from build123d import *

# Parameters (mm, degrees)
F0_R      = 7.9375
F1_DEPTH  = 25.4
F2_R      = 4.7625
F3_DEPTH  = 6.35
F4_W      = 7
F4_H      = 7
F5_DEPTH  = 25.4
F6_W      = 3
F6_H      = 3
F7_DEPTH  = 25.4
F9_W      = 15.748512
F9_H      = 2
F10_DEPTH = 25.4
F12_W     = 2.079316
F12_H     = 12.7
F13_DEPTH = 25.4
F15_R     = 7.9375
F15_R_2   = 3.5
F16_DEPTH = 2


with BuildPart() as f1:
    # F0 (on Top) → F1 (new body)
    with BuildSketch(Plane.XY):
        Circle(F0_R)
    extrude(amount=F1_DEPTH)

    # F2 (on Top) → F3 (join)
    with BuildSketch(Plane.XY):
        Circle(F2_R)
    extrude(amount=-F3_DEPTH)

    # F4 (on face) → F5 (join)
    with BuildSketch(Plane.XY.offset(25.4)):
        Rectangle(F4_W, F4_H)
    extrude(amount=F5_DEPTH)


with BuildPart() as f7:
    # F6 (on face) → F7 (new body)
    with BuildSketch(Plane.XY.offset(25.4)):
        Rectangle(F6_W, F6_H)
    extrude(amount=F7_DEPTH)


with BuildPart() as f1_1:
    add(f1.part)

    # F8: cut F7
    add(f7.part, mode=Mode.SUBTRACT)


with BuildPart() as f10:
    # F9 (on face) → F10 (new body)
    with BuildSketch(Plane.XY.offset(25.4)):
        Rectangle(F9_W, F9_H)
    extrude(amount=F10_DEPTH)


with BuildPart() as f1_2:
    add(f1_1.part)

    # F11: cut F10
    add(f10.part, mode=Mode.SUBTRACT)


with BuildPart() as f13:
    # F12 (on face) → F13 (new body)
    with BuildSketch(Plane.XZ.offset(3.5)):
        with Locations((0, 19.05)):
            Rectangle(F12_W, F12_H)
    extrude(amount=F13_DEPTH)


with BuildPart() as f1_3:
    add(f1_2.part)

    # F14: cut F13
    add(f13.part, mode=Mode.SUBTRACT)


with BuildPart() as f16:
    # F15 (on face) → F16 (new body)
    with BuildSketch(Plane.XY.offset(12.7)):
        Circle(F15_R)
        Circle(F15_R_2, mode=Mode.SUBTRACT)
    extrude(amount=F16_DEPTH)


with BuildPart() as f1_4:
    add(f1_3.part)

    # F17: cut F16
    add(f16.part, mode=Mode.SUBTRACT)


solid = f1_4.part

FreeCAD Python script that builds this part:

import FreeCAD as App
import Part
import Sketcher

V = App.Vector
Q = App.Units.Quantity

doc = App.newDocument("Part")
body = doc.addObject("PartDesign::Body", "Body")

sketch1 = doc.addObject("Sketcher::SketchObject", "Sketch")
body.addObject(sketch1)
sketch1.AttachmentSupport = (doc.XY_Plane, [""])
sketch1.MapMode = "FlatFace"
sketch1.addGeometry(Part.Circle(V(0, 0, 0), V(0, 0, 1), 8), False)
sketch1.addConstraint(Sketcher.Constraint("Coincident", 0, 3, -1, 1))
sketch1.addConstraint(Sketcher.Constraint("Diameter", 0, Q("0.625 in")))
pad1 = doc.addObject("PartDesign::Pad", "Pad")
body.addObject(pad1)
pad1.Profile = sketch1
pad1.Length = Q("1 in")

sketch2 = doc.addObject("Sketcher::SketchObject", "Sketch001")
body.addObject(sketch2)
sketch2.AttachmentSupport = (doc.XY_Plane, [""])
sketch2.MapMode = "FlatFace"
sketch2.addGeometry(Part.Circle(V(0, 0, 0), V(0, 0, 1), 4.8), False)
sketch2.addConstraint(Sketcher.Constraint("Coincident", 0, 3, -1, 1))
sketch2.addConstraint(Sketcher.Constraint("Diameter", 0, Q("0.375 in")))
pad2 = doc.addObject("PartDesign::Pad", "Pad001")
body.addObject(pad2)
pad2.Profile = sketch2
pad2.Length = Q("0.25 in")
pad2.Reversed = True

sketch3 = doc.addObject("Sketcher::SketchObject", "Sketch002")
body.addObject(sketch3)
sketch3.AttachmentSupport = (doc.XY_Plane, [""])
sketch3.MapMode = "FlatFace"
sketch3.AttachmentOffset = App.Placement(V(0, 0, 1 * 25.4), App.Rotation())
sketch3.addGeometry(Part.LineSegment(V(-4, 4, 0), V(-4, -4, 0)), False)
sketch3.addGeometry(Part.LineSegment(V(-4, -4, 0), V(4, -4, 0)), False)
sketch3.addGeometry(Part.LineSegment(V(4, -4, 0), V(4, 4, 0)), False)
sketch3.addGeometry(Part.LineSegment(V(4, 4, 0), V(-4, 4, 0)), False)
sketch3.addConstraint(Sketcher.Constraint("Coincident", 0, 2, 1, 1))
sketch3.addConstraint(Sketcher.Constraint("Coincident", 1, 2, 2, 1))
sketch3.addConstraint(Sketcher.Constraint("Coincident", 2, 2, 3, 1))
sketch3.addConstraint(Sketcher.Constraint("Coincident", 3, 2, 0, 1))
sketch3.addConstraint(Sketcher.Constraint("Vertical", 0))
sketch3.addConstraint(Sketcher.Constraint("Horizontal", 1))
sketch3.addConstraint(Sketcher.Constraint("Vertical", 2))
sketch3.addConstraint(Sketcher.Constraint("Horizontal", 3))
sketch3.addConstraint(Sketcher.Constraint("Symmetric", 0, 2, 2, 2, -1, 1))
sketch3.addConstraint(Sketcher.Constraint("Equal", 3, 0))
sketch3.addConstraint(Sketcher.Constraint("DistanceX", 1, 1, 1, 2, Q("7 mm")))
pad3 = doc.addObject("PartDesign::Pad", "Pad002")
body.addObject(pad3)
pad3.Profile = sketch3
pad3.Length = Q("1 in")
body2 = doc.addObject("PartDesign::Body", "Body001")

sketch4 = doc.addObject("Sketcher::SketchObject", "Sketch003")
body2.addObject(sketch4)
sketch4.AttachmentSupport = (doc.getObject("XY_Plane001"), [""])
sketch4.MapMode = "FlatFace"
sketch4.AttachmentOffset = App.Placement(V(0, 0, 1 * 25.4), App.Rotation())
sketch4.addGeometry(Part.LineSegment(V(-1.5, 1.5, 0), V(-1.5, -1.5, 0)), False)
sketch4.addGeometry(Part.LineSegment(V(-1.5, -1.5, 0), V(1.5, -1.5, 0)), False)
sketch4.addGeometry(Part.LineSegment(V(1.5, -1.5, 0), V(1.5, 1.5, 0)), False)
sketch4.addGeometry(Part.LineSegment(V(1.5, 1.5, 0), V(-1.5, 1.5, 0)), False)
sketch4.addConstraint(Sketcher.Constraint("Coincident", 0, 2, 1, 1))
sketch4.addConstraint(Sketcher.Constraint("Coincident", 1, 2, 2, 1))
sketch4.addConstraint(Sketcher.Constraint("Coincident", 2, 2, 3, 1))
sketch4.addConstraint(Sketcher.Constraint("Coincident", 3, 2, 0, 1))
sketch4.addConstraint(Sketcher.Constraint("Vertical", 0))
sketch4.addConstraint(Sketcher.Constraint("Horizontal", 1))
sketch4.addConstraint(Sketcher.Constraint("Vertical", 2))
sketch4.addConstraint(Sketcher.Constraint("Horizontal", 3))
sketch4.addConstraint(Sketcher.Constraint("Symmetric", 0, 2, 2, 2, -1, 1))
sketch4.addConstraint(Sketcher.Constraint("Equal", 3, 0))
sketch4.addConstraint(Sketcher.Constraint("DistanceX", 1, 1, 1, 2, Q("3 mm")))
pad4 = doc.addObject("PartDesign::Pad", "Pad003")
body2.addObject(pad4)
pad4.Profile = sketch4
pad4.Length = Q("1 in")
doc.recompute()

boolean = doc.addObject("PartDesign::Boolean", "Boolean")
body.addObject(boolean)
boolean.Type = "Cut"
boolean.addObjects([body2])
body3 = doc.addObject("PartDesign::Body", "Body002")

sketch5 = doc.addObject("Sketcher::SketchObject", "Sketch004")
body3.addObject(sketch5)
sketch5.AttachmentSupport = (doc.getObject("XY_Plane002"), [""])
sketch5.MapMode = "FlatFace"
sketch5.AttachmentOffset = App.Placement(V(0, 0, 1 * 25.4), App.Rotation())
sketch5.addGeometry(Part.LineSegment(V(-7.9, 1, 0), V(-7.9, -1, 0)), False)
sketch5.addGeometry(Part.LineSegment(V(-7.9, -1, 0), V(7.9, -1, 0)), False)
sketch5.addGeometry(Part.LineSegment(V(7.9, -1, 0), V(7.9, 1, 0)), False)
sketch5.addGeometry(Part.LineSegment(V(7.9, 1, 0), V(-7.9, 1, 0)), False)
sketch5.addConstraint(Sketcher.Constraint("Coincident", 0, 2, 1, 1))
sketch5.addConstraint(Sketcher.Constraint("Coincident", 1, 2, 2, 1))
sketch5.addConstraint(Sketcher.Constraint("Coincident", 2, 2, 3, 1))
sketch5.addConstraint(Sketcher.Constraint("Coincident", 3, 2, 0, 1))
sketch5.addConstraint(Sketcher.Constraint("Vertical", 0))
sketch5.addConstraint(Sketcher.Constraint("Horizontal", 1))
sketch5.addConstraint(Sketcher.Constraint("Vertical", 2))
sketch5.addConstraint(Sketcher.Constraint("Horizontal", 3))
sketch5.addConstraint(Sketcher.Constraint("Symmetric", 0, 2, 2, 2, -1, 1))
sketch5.addConstraint(Sketcher.Constraint("DistanceY", 0, 2, 0, 1, Q("2 mm")))
sketch5.addConstraint(Sketcher.Constraint("DistanceX", 1, 1, 1, 2, Q("15.748512 mm")))
pad5 = doc.addObject("PartDesign::Pad", "Pad004")
body3.addObject(pad5)
pad5.Profile = sketch5
pad5.Length = Q("1 in")
doc.recompute()

boolean2 = doc.addObject("PartDesign::Boolean", "Boolean001")
body.addObject(boolean2)
boolean2.Type = "Cut"
boolean2.addObjects([body3])
body4 = doc.addObject("PartDesign::Body", "Body003")

sketch6 = doc.addObject("Sketcher::SketchObject", "Sketch005")
body4.addObject(sketch6)
sketch6.AttachmentSupport = (doc.getObject("XZ_Plane003"), [""])
sketch6.MapMode = "FlatFace"
sketch6.AttachmentOffset = App.Placement(V(0, 0, 3.5), App.Rotation())
sketch6.addGeometry(Part.LineSegment(V(-1, 25.4, 0), V(-1, 12.7, 0)), False)
sketch6.addGeometry(Part.LineSegment(V(-1, 12.7, 0), V(1, 12.7, 0)), False)
sketch6.addGeometry(Part.LineSegment(V(1, 12.7, 0), V(1, 25.4, 0)), False)
sketch6.addGeometry(Part.LineSegment(V(1, 25.4, 0), V(-1, 25.4, 0)), False)
sketch6.addConstraint(Sketcher.Constraint("Coincident", 0, 2, 1, 1))
sketch6.addConstraint(Sketcher.Constraint("Coincident", 1, 2, 2, 1))
sketch6.addConstraint(Sketcher.Constraint("Coincident", 2, 2, 3, 1))
sketch6.addConstraint(Sketcher.Constraint("Coincident", 3, 2, 0, 1))
sketch6.addConstraint(Sketcher.Constraint("Vertical", 0))
sketch6.addConstraint(Sketcher.Constraint("Horizontal", 1))
sketch6.addConstraint(Sketcher.Constraint("Vertical", 2))
sketch6.addConstraint(Sketcher.Constraint("Horizontal", 3))
sketch6.addConstraint(Sketcher.Constraint("DistanceY", 0, 2, 0, 1, Q("0.5 in")))
sketch6.addConstraint(Sketcher.Constraint("DistanceY", -1, 1, 2, 2, Q("1 in")))
sketch6.addConstraint(Sketcher.Constraint("DistanceX", 1, 1, 1, 2, Q("2.079316 mm")))
sketch6.addConstraint(Sketcher.Constraint("DistanceX", 0, 2, -1, 1, Q("1.039658 mm")))
pad6 = doc.addObject("PartDesign::Pad", "Pad005")
body4.addObject(pad6)
pad6.Profile = sketch6
pad6.Length = Q("1 in")
doc.recompute()

boolean3 = doc.addObject("PartDesign::Boolean", "Boolean002")
body.addObject(boolean3)
boolean3.Type = "Cut"
boolean3.addObjects([body4])
body5 = doc.addObject("PartDesign::Body", "Body004")

sketch7 = doc.addObject("Sketcher::SketchObject", "Sketch006")
body5.addObject(sketch7)
sketch7.AttachmentSupport = (doc.getObject("XY_Plane004"), [""])
sketch7.MapMode = "FlatFace"
sketch7.AttachmentOffset = App.Placement(V(0, 0, 0.5 * 25.4), App.Rotation())
sketch7.addGeometry(Part.Circle(V(0, 0, 0), V(0, 0, 1), 7.9), False)
sketch7.addGeometry(Part.Circle(V(0, 0, 0), V(0, 0, 1), 3.5), False)
sketch7.addConstraint(Sketcher.Constraint("Coincident", 0, 3, -1, 1))
sketch7.addConstraint(Sketcher.Constraint("Coincident", 1, 3, -1, 1))
sketch7.addConstraint(Sketcher.Constraint("Diameter", 0, Q("0.625 in")))
sketch7.addConstraint(Sketcher.Constraint("Diameter", 1, Q("7 mm")))
pad7 = doc.addObject("PartDesign::Pad", "Pad006")
body5.addObject(pad7)
pad7.Profile = sketch7
pad7.Length = 2
doc.recompute()

boolean4 = doc.addObject("PartDesign::Boolean", "Boolean003")
body.addObject(boolean4)
boolean4.Type = "Cut"
boolean4.addObjects([body5])

doc.recompute()
